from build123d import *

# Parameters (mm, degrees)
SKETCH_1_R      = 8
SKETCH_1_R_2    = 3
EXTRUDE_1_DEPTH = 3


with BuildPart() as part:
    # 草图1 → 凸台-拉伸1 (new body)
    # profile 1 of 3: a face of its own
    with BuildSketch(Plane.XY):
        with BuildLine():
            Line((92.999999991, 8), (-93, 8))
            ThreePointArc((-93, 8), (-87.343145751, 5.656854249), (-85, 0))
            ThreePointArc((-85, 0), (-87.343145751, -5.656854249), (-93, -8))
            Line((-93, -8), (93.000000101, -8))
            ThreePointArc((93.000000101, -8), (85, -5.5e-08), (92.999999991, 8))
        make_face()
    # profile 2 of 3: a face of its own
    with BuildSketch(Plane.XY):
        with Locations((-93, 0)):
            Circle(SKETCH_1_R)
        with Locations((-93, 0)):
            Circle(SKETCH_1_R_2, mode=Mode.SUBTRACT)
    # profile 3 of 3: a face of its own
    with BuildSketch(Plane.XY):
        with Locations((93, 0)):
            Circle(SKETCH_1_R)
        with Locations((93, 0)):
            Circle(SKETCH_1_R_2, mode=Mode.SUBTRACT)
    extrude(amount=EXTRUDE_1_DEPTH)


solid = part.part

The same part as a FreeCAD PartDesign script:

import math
import FreeCAD as App
import Part
import Sketcher

doc = App.newDocument("Part")
body = doc.addObject("PartDesign::Body", "Body")

# Sketch on XY plane
sketch1 = body.newObject("Sketcher::SketchObject", "Sketch")
sketch1.AttachmentSupport = (doc.getObject("XY_Plane"), [""])
sketch1.MapMode = "FlatFace"
sketch1.addGeometry([
    Part.LineSegment(App.Vector(93, 8, 0), App.Vector(-93, 8, 0)),  # 0
    Part.ArcOfCircle(Part.Circle(App.Vector(-93, 0, 0), App.Vector(0, 0, 1), 8), math.radians(90), math.radians(270)),  # 1
    Part.LineSegment(App.Vector(-93, -8, 0), App.Vector(93, -8, 0)),  # 2
    Part.ArcOfCircle(Part.Circle(App.Vector(93, 0, 0), App.Vector(0, 0, 1), 8), math.radians(-90), math.radians(90)),  # 3
    Part.Circle(App.Vector(-93, 0, 0), App.Vector(0, 0, 1), 3),  # 4
    Part.Circle(App.Vector(93, 0, 0), App.Vector(0, 0, 1), 3),  # 5
], False)
sketch1.addConstraint([
    Sketcher.Constraint("Tangent", 0, 2, 1, 1),
    Sketcher.Constraint("Tangent", 1, 2, 2, 1),
    Sketcher.Constraint("Tangent", 2, 2, 3, 1),
    Sketcher.Constraint("Tangent", 3, 2, 0, 1),
    Sketcher.Constraint("Horizontal", 0),
    Sketcher.Constraint("Horizontal", 2),
    Sketcher.Constraint("Coincident", 4, 3, 1, 3),
    Sketcher.Constraint("Coincident", 5, 3, 3, 3),
    Sketcher.Constraint("Equal", 4, 5),
    Sketcher.Constraint("Symmetric", 1, 3, 3, 3, -1, 1),
    Sketcher.Constraint("Diameter", 4, 6.0),
    Sketcher.Constraint("Radius", 1, 8.0),
    Sketcher.Constraint("DistanceX", 0, 2, 0, 1, 186.0),
])
pad1 = body.newObject("PartDesign::Pad", "Pad")
pad1.Profile = sketch1
pad1.Length = 3

doc.recompute()
